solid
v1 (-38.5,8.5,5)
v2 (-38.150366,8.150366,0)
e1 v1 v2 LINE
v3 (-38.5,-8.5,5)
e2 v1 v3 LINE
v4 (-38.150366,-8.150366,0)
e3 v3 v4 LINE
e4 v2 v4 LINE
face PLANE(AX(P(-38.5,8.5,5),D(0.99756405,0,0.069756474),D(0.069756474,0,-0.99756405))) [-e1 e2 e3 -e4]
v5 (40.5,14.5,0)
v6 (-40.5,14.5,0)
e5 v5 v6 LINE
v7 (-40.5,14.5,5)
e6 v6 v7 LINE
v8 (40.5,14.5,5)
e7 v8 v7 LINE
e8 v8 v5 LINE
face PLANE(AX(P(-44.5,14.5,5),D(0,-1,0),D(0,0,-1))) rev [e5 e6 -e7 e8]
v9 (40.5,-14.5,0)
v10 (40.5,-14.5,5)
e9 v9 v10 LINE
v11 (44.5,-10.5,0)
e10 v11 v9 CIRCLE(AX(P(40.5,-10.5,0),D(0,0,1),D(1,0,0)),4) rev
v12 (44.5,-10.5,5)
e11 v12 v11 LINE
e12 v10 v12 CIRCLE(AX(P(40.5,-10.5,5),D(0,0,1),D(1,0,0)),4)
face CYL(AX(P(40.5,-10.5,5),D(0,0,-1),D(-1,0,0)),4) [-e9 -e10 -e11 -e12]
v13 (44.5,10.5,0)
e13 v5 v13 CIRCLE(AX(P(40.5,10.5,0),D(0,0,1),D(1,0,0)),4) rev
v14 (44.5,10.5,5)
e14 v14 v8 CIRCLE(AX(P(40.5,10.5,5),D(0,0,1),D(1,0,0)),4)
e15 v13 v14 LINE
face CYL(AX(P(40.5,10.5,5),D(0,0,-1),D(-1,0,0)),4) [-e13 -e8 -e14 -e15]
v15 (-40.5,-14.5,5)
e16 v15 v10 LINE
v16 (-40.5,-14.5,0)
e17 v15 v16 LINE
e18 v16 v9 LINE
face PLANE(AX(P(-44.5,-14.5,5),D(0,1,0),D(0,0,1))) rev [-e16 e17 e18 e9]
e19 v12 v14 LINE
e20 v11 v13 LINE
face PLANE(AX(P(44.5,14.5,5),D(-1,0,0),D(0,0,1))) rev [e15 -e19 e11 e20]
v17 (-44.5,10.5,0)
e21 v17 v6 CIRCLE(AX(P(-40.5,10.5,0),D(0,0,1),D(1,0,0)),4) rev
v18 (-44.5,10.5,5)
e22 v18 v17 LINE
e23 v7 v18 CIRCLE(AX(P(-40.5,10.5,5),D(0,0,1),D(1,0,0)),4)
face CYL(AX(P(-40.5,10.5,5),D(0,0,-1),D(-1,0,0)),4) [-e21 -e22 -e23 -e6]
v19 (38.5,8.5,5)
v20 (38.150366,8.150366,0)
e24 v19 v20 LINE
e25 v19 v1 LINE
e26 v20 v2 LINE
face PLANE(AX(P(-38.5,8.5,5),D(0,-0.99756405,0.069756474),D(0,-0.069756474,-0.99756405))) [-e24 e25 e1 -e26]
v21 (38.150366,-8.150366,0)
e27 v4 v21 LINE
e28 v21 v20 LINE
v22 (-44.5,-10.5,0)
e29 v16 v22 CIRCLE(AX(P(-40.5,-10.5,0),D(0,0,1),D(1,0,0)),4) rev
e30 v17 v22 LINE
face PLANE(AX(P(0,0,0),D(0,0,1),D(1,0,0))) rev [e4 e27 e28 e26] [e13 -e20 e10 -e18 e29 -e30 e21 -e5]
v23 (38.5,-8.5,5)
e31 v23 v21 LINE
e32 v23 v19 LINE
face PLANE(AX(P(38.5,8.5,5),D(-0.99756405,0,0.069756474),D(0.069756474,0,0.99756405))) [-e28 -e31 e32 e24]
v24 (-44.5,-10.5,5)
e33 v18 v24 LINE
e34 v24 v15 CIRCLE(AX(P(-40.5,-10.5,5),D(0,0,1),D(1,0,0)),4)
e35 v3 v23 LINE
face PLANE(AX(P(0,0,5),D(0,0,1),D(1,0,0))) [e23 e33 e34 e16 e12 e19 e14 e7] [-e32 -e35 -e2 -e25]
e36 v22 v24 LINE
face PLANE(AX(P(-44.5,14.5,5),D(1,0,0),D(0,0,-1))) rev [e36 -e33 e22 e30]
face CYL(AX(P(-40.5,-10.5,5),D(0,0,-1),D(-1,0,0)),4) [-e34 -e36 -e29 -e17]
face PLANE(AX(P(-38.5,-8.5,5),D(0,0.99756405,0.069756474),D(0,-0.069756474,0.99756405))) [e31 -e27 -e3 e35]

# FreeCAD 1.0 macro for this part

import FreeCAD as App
import Part
import Sketcher

V = App.Vector


def edges_at(feature, points):
    """Names of the edges that pass closest to the given points."""
    edges = feature.Shape.Edges
    near = lambda p: min(range(len(edges)), key=lambda i: edges[i].distToShape(Part.Vertex(*p))[0])
    return sorted({f"Edge{near(p) + 1}" for p in points})


def faces_at(feature, points):
    """Names of the faces that lie closest to the given points."""
    faces = feature.Shape.Faces
    near = lambda p: min(range(len(faces)), key=lambda i: faces[i].distToShape(Part.Vertex(*p))[0])
    return sorted({f"Face{near(p) + 1}" for p in points})


def add_polygon(sketch, points):
    """Adds a closed chain of lines whose ends are joined by coincident constraints."""
    first, n = sketch.GeometryCount, len(points)
    for a, b in zip(points, points[1:] + points[:1]):
        sketch.addGeometry(Part.LineSegment(App.Vector(*a, 0), App.Vector(*b, 0)), False)
    for i in range(n):
        sketch.addConstraint(Sketcher.Constraint("Coincident", first + i, 2, first + (i + 1) % n, 1))

doc = App.newDocument("Part")
body = doc.addObject("PartDesign::Body", "Body")

sketch1 = body.newObject("Sketcher::SketchObject", "Sketch")
sketch1.AttachmentSupport = (doc.getObject("XY_Plane"), [""])
sketch1.MapMode = "FlatFace"
add_polygon(sketch1, [(-44, 14), (-44, -14), (44, -14), (44, 14)])
add_polygon(sketch1, [(38, -8), (-38, -8), (-38, 8), (38, 8)])
sketch1.addConstraint(Sketcher.Constraint("Vertical", 0))
sketch1.addConstraint(Sketcher.Constraint("Horizontal", 1))
sketch1.addConstraint(Sketcher.Constraint("Vertical", 2))
sketch1.addConstraint(Sketcher.Constraint("Horizontal", 3))
sketch1.addConstraint(Sketcher.Constraint("Horizontal", 4))
sketch1.addConstraint(Sketcher.Constraint("Vertical", 5))
sketch1.addConstraint(Sketcher.Constraint("Horizontal", 6))
sketch1.addConstraint(Sketcher.Constraint("Vertical", 7))
sketch1.addConstraint(Sketcher.Constraint("Symmetric", 0, 2, 2, 2, -1, 1))
sketch1.addConstraint(Sketcher.Constraint("Symmetric", 4, 2, 6, 2, -1, 1))
sketch1.addConstraint(Sketcher.Constraint("DistanceX", 1, 1, 1, 2, 89.0))
sketch1.addConstraint(Sketcher.Constraint("DistanceX", 4, 2, 4, 1, 77.0))
sketch1.addConstraint(Sketcher.Constraint("DistanceY", 0, 2, 0, 1, 29.0))
sketch1.addConstraint(Sketcher.Constraint("DistanceY", 5, 1, 5, 2, 17.0))
pad1 = body.newObject("PartDesign::Pad", "Pad")
pad1.Profile = sketch1
pad1.Length = 5
doc.recompute()

fillet = body.newObject("PartDesign::Fillet", "Fillet")
fillet.Base = (pad1, edges_at(pad1, [
    (44.5, -14.5, 2.5),
    (-44.5, -14.5, 2.5),
    (-44.5, 14.5, 2.5),
    (44.5, 14.5, 2.5),
]))
fillet.Radius = 4
doc.recompute()

datumplane = body.newObject("PartDesign::Plane", "DatumPlane")
datumplane.AttachmentSupport = (doc.getObject("XY_Plane"), [""])
datumplane.MapMode = "FlatFace"
datumplane.AttachmentOffset = App.Placement(V(0, 0, 5), App.Rotation())
draft = body.newObject("PartDesign::Draft", "Draft")
draft.Base = (fillet, faces_at(fillet, [
    (38.5, 0, 2.5),
    (0, -8.5, 2.5),
    (-38.5, 0, 2.5),
    (0, 8.5, 2.5),
]))
draft.NeutralPlane = (datumplane, [""])
draft.Angle = 4
draft.Reversed = False

doc.recompute()
